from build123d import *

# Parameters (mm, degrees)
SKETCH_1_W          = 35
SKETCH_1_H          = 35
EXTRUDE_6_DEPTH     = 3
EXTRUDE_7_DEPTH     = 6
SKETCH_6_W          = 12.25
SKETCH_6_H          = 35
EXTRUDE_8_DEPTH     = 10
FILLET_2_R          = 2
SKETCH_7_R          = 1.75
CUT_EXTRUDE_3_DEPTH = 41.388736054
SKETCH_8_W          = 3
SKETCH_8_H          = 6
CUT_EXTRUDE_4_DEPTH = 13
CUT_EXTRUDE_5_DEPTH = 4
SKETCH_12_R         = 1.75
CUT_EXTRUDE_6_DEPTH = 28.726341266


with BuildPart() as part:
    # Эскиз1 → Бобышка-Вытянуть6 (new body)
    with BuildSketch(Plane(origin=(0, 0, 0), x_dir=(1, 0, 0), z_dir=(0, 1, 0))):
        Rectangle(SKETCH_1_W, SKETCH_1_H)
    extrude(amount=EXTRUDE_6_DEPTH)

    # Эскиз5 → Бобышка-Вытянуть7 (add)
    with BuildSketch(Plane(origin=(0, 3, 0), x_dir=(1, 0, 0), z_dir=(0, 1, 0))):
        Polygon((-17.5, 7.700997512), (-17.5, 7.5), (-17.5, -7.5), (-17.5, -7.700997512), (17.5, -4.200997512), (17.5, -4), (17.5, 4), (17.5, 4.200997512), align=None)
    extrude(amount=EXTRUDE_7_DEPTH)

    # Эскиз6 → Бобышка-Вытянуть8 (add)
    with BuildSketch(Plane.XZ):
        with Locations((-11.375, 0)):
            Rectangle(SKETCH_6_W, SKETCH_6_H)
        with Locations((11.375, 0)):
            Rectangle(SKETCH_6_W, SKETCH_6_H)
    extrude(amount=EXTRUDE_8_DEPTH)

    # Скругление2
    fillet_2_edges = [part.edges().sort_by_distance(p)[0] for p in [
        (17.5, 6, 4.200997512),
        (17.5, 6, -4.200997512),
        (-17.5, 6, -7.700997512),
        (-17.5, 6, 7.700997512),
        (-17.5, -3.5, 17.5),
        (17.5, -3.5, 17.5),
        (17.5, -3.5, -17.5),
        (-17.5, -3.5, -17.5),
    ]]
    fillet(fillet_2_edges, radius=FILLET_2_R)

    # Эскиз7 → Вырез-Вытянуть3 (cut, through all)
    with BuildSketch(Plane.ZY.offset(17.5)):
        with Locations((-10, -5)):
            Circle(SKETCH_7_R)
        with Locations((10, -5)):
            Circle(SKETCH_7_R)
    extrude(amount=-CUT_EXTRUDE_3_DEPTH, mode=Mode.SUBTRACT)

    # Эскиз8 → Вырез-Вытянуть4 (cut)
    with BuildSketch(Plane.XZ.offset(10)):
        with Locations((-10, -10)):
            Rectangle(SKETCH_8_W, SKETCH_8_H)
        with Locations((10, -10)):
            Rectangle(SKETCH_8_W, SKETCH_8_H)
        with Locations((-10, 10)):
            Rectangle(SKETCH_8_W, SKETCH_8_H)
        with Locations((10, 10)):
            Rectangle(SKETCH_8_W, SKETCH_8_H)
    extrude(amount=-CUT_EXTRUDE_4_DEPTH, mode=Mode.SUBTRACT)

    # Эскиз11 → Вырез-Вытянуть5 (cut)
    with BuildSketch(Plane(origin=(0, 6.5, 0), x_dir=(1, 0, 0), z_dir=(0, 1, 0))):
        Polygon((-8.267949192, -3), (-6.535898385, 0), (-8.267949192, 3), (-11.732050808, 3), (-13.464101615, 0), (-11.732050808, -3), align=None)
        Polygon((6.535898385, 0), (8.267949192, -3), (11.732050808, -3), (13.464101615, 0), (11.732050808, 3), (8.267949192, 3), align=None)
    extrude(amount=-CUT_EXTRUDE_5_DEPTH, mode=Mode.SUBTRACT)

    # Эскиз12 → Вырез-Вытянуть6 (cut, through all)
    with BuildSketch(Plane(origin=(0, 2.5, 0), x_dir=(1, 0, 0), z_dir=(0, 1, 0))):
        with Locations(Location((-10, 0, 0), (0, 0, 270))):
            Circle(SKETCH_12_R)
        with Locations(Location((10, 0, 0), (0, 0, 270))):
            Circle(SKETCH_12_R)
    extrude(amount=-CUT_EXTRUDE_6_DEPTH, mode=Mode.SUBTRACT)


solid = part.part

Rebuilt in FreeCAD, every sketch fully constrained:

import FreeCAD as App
import Part
import Sketcher
from FreeCAD import Vector
Q = App.Units.Quantity


def edges_at(feature, points):
    """Names of the edges that pass closest to the given points."""
    edges = feature.Shape.Edges
    near = lambda p: min(range(len(edges)), key=lambda i: edges[i].distToShape(Part.Vertex(*p))[0])
    return sorted({f"Edge{near(p) + 1}" for p in points})


def add_polygon(sketch, points):
    """Adds a closed chain of lines whose ends are joined by coincident constraints."""
    first, n = sketch.GeometryCount, len(points)
    for a, b in zip(points, points[1:] + points[:1]):
        sketch.addGeometry(Part.LineSegment(App.Vector(*a, 0), App.Vector(*b, 0)), False)
    for i in range(n):
        sketch.addConstraint(Sketcher.Constraint("Coincident", first + i, 2, first + (i + 1) % n, 1))

doc = App.newDocument("Part")
body = doc.addObject("PartDesign::Body", "Body")

# Sketch on XZ plane
sketch1 = doc.addObject("Sketcher::SketchObject", "Sketch")
body.addObject(sketch1)
sketch1.AttachmentSupport = (doc.XZ_Plane, [""])
sketch1.MapMode = "FlatFace"
add_polygon(sketch1, [(-18, -18), (-18, 18), (18, 18), (18, -18)])  # lines 0-3
sketch1.addConstraint([
    Sketcher.Constraint("Vertical", 0),
    Sketcher.Constraint("Horizontal", 1),
    Sketcher.Constraint("Vertical", 2),
    Sketcher.Constraint("Horizontal", 3),
    Sketcher.Constraint("Symmetric", 0, 2, 2, 2, -1, 1),
    Sketcher.Constraint("Equal", 3, 0),
    Sketcher.Constraint("DistanceX", 1, 1, 1, 2, 35.0),
])
pad1 = doc.addObject("PartDesign::Pad", "Pad")
body.addObject(pad1)
pad1.Profile = sketch1
pad1.Length = 3
pad1.Reversed = True

# Sketch on XZ plane
sketch2 = doc.addObject("Sketcher::SketchObject", "Sketch001")
body.addObject(sketch2)
sketch2.AttachmentSupport = (doc.XZ_Plane, [""])
sketch2.MapMode = "FlatFace"
sketch2.AttachmentOffset = App.Placement(Vector(0, 0, -3), App.Rotation())
add_polygon(sketch2, [(-18, -8), (-18, 8), (18, 4), (18, -4)])  # lines 0-3
sketch2.addConstraint([
    Sketcher.Constraint("Vertical", 0),
    Sketcher.Constraint("Vertical", 2),
    Sketcher.Constraint("Equal", 1, 3),
    Sketcher.Constraint("DistanceX", 0, 2, 1, 2, 35.0),
    Sketcher.Constraint("DistanceX", 0, 2, -1, 1, 17.5),
    Sketcher.Constraint("DistanceY", 1, 2, 0, 2, 3.5),
    Sketcher.Constraint("DistanceY", 0, 1, 0, 2, 15.401995),
    Sketcher.Constraint("DistanceY", -1, 1, 0, 2, 7.700998),
])
pad2 = doc.addObject("PartDesign::Pad", "Pad001")
body.addObject(pad2)
pad2.Profile = sketch2
pad2.Length = 6
pad2.Reversed = True

# Sketch on XZ plane
sketch3 = doc.addObject("Sketcher::SketchObject", "Sketch002")
body.addObject(sketch3)
sketch3.AttachmentSupport = (doc.XZ_Plane, [""])
sketch3.MapMode = "FlatFace"
add_polygon(sketch3, [(-18, 18), (-18, -18), (-5, -18), (-5, 18)])  # lines 0-3
add_polygon(sketch3, [(5, 18), (5, -18), (18, -18), (18, 18)])  # lines 4-7
sketch3.addConstraint([
    Sketcher.Constraint("Vertical", 0),
    Sketcher.Constraint("Horizontal", 1),
    Sketcher.Constraint("Vertical", 2),
    Sketcher.Constraint("Horizontal", 3),
    Sketcher.Constraint("Vertical", 4),
    Sketcher.Constraint("Horizontal", 5),
    Sketcher.Constraint("Vertical", 6),
    Sketcher.Constraint("Horizontal", 7),
    Sketcher.Constraint("Symmetric", 2, 2, 4, 2, -1, 1),
    Sketcher.Constraint("Symmetric", 0, 2, 6, 2, -1, 1),
    Sketcher.Constraint("Horizontal", 1, 2, 4, 2),
    Sketcher.Constraint("DistanceY", 0, 2, 0, 1, 35.0),
    Sketcher.Constraint("DistanceX", 0, 2, 5, 2, 35.0),
    Sketcher.Constraint("DistanceX", 1, 1, 1, 2, 12.25),
])
pad3 = doc.addObject("PartDesign::Pad", "Pad002")
body.addObject(pad3)
pad3.Profile = sketch3
pad3.Length = 10
doc.recompute()

fillet = doc.addObject("PartDesign::Fillet", "Fillet")
body.addObject(fillet)
fillet.Base = (pad3, edges_at(pad3, [
    (17.5, 6, 4.201),
    (17.5, 6, -4.201),
    (-17.5, 6, -7.701),
    (-17.5, 6, 7.701),
    (-17.5, -3.5, 17.5),
    (17.5, -3.5, 17.5),
    (17.5, -3.5, -17.5),
    (-17.5, -3.5, -17.5),
]))
fillet.Radius = 2

# Sketch on YZ plane
sketch4 = doc.addObject("Sketcher::SketchObject", "Sketch003")
body.addObject(sketch4)
sketch4.AttachmentSupport = (doc.YZ_Plane, [""])
sketch4.MapMode = "FlatFace"
sketch4.AttachmentOffset = App.Placement(Vector(0, 0, -17.5), App.Rotation())
sketch4.addGeometry([
    Part.Circle(Vector(-5, -10, 0), Vector(0, 0, 1), 1.8),
    Part.Circle(Vector(-5, 10, 0), Vector(0, 0, 1), 1.8),
], False)
sketch4.addConstraint([
    Sketcher.Constraint("Equal", 0, 1),
    Sketcher.Constraint("Symmetric", 0, 3, 1, 3, -1),
    Sketcher.Constraint("Diameter", 0, 3.5),
    Sketcher.Constraint("DistanceX", 0, 3, -1, 1, 5.0),
    Sketcher.Constraint("DistanceY", 0, 3, -1, 1, 10.0),
])
pocket1 = doc.addObject("PartDesign::Pocket", "Pocket")
body.addObject(pocket1)
pocket1.Profile = sketch4
pocket1.Type = "ThroughAll"
pocket1.Reversed = True

# Sketch on XZ plane
sketch5 = doc.addObject("Sketcher::SketchObject", "Sketch004")
body.addObject(sketch5)
sketch5.AttachmentSupport = (doc.XZ_Plane, [""])
sketch5.MapMode = "FlatFace"
sketch5.AttachmentOffset = App.Placement(Vector(0, 0, 10), App.Rotation())
add_polygon(sketch5, [(-11.5, -7), (-11.5, -13), (-8.5, -13), (-8.5, -7)])  # lines 0-3
add_polygon(sketch5, [(8.5, -7), (8.5, -13), (11.5, -13), (11.5, -7)])  # lines 4-7
add_polygon(sketch5, [(-11.5, 13), (-11.5, 7), (-8.5, 7), (-8.5, 13)])  # lines 8-11
add_polygon(sketch5, [(8.5, 13), (8.5, 7), (11.5, 7), (11.5, 13)])  # lines 12-15
sketch5.addConstraint([
    Sketcher.Constraint("Vertical", 0),
    Sketcher.Constraint("Horizontal", 1),
    Sketcher.Constraint("Vertical", 2),
    Sketcher.Constraint("Horizontal", 3),
    Sketcher.Constraint("Vertical", 4),
    Sketcher.Constraint("Horizontal", 5),
    Sketcher.Constraint("Vertical", 6),
    Sketcher.Constraint("Horizontal", 7),
    Sketcher.Constraint("Vertical", 8),
    Sketcher.Constraint("Horizontal", 9),
    Sketcher.Constraint("Vertical", 10),
    Sketcher.Constraint("Horizontal", 11),
    Sketcher.Constraint("Vertical", 12),
    Sketcher.Constraint("Horizontal", 13),
    Sketcher.Constraint("Vertical", 14),
    Sketcher.Constraint("Horizontal", 15),
    Sketcher.Constraint("Symmetric", 6, 2, 8, 2, -1, 1),
    Sketcher.Constraint("Symmetric", 4, 2, 10, 2, -1, 1),
    Sketcher.Constraint("Symmetric", 2, 2, 12, 2, -1, 1),
    Sketcher.Constraint("Symmetric", 0, 2, 14, 2, -1, 1),
    Sketcher.Constraint("Symmetric", 1, 2, 4, 2, -2),
    Sketcher.Constraint("Symmetric", 3, 2, 6, 2, -2),
    Sketcher.Constraint("DistanceX", 1, 1, 1, 2, 3.0),
    Sketcher.Constraint("DistanceY", 0, 2, 0, 1, 6.0),
    Sketcher.Constraint("DistanceY", 0, 2, -1, 1, 13.0),
    Sketcher.Constraint("DistanceX", 1, 2, 4, 2, 17.0),
])
pocket2 = doc.addObject("PartDesign::Pocket", "Pocket001")
body.addObject(pocket2)
pocket2.Profile = sketch5
pocket2.Length = 13

# Sketch on XZ plane
sketch6 = doc.addObject("Sketcher::SketchObject", "Sketch005")
body.addObject(sketch6)
sketch6.AttachmentSupport = (doc.XZ_Plane, [""])
sketch6.MapMode = "FlatFace"
sketch6.AttachmentOffset = App.Placement(Vector(0, 0, -6.5), App.Rotation())
add_polygon(sketch6, [(-8.3, 3), (-6.5, 0), (-8.3, -3), (-11.7, -3), (-13.5, 0), (-11.7, 3)])  # lines 0-5
add_polygon(sketch6, [(6.5, 0), (8.3, 3), (11.7, 3), (13.5, 0), (11.7, -3), (8.3, -3)])  # lines 6-11
sketch6.addConstraint([
    Sketcher.Constraint("Horizontal", 2),
    Sketcher.Constraint("Horizontal", 5),
    Sketcher.Constraint("Horizontal", 7),
    Sketcher.Constraint("Horizontal", 10),
    Sketcher.Constraint("Symmetric", 1, 2, 6, 2, -1, 1),
    Sketcher.Constraint("Symmetric", 3, 2, 8, 2, -1, 1),
    Sketcher.Constraint("Symmetric", 4, 2, 9, 2, -1, 1),
    Sketcher.Constraint("Symmetric", 0, 2, 11, 2, -1, 1),
    Sketcher.Constraint("Symmetric", 5, 2, 6, 2, -2),
    Sketcher.Constraint("PointOnObject", 0, 2, -1),
    Sketcher.Constraint("PointOnObject", 3, 2, -1),
    Sketcher.Constraint("Parallel", 0, 3),
    Sketcher.Constraint("Parallel", 1, 4),
    Sketcher.Constraint("Parallel", 3, 8),
    Sketcher.Constraint("Parallel", 8, 11),
    Sketcher.Constraint("Angle", 0, Q("-60 deg")),
    Sketcher.Constraint("DistanceY", 1, 2, -1, 1, 3.0),
    Sketcher.Constraint("DistanceX", 4, 2, 6, 2, 20.0),
    Sketcher.Constraint("DistanceX", 2, 2, 2, 1, 3.464102),
])
pocket3 = doc.addObject("PartDesign::Pocket", "Pocket002")
body.addObject(pocket3)
pocket3.Profile = sketch6
pocket3.Length = 4
pocket3.Reversed = True

# Sketch on XZ plane
sketch7 = doc.addObject("Sketcher::SketchObject", "Sketch006")
body.addObject(sketch7)
sketch7.AttachmentSupport = (doc.XZ_Plane, [""])
sketch7.MapMode = "FlatFace"
sketch7.AttachmentOffset = App.Placement(Vector(0, 0, -2.5), App.Rotation())
sketch7.addGeometry([
    Part.Circle(Vector(-10, 0, 0), Vector(0, 0, 1), 1.8),
    Part.Circle(Vector(10, 0, 0), Vector(0, 0, 1), 1.8),
], False)
sketch7.addConstraint([
    Sketcher.Constraint("Equal", 0, 1),
    Sketcher.Constraint("Symmetric", 0, 3, 1, 3, -1, 1),
    Sketcher.Constraint("PointOnObject", 0, 3, -1),
    Sketcher.Constraint("Diameter", 0, 3.5),
    Sketcher.Constraint("DistanceX", 0, 3, -1, 1, 10.0),
])
pocket4 = doc.addObject("PartDesign::Pocket", "Pocket003")
body.addObject(pocket4)
pocket4.Profile = sketch7
pocket4.Type = "ThroughAll"
pocket4.Reversed = True

doc.recompute()
